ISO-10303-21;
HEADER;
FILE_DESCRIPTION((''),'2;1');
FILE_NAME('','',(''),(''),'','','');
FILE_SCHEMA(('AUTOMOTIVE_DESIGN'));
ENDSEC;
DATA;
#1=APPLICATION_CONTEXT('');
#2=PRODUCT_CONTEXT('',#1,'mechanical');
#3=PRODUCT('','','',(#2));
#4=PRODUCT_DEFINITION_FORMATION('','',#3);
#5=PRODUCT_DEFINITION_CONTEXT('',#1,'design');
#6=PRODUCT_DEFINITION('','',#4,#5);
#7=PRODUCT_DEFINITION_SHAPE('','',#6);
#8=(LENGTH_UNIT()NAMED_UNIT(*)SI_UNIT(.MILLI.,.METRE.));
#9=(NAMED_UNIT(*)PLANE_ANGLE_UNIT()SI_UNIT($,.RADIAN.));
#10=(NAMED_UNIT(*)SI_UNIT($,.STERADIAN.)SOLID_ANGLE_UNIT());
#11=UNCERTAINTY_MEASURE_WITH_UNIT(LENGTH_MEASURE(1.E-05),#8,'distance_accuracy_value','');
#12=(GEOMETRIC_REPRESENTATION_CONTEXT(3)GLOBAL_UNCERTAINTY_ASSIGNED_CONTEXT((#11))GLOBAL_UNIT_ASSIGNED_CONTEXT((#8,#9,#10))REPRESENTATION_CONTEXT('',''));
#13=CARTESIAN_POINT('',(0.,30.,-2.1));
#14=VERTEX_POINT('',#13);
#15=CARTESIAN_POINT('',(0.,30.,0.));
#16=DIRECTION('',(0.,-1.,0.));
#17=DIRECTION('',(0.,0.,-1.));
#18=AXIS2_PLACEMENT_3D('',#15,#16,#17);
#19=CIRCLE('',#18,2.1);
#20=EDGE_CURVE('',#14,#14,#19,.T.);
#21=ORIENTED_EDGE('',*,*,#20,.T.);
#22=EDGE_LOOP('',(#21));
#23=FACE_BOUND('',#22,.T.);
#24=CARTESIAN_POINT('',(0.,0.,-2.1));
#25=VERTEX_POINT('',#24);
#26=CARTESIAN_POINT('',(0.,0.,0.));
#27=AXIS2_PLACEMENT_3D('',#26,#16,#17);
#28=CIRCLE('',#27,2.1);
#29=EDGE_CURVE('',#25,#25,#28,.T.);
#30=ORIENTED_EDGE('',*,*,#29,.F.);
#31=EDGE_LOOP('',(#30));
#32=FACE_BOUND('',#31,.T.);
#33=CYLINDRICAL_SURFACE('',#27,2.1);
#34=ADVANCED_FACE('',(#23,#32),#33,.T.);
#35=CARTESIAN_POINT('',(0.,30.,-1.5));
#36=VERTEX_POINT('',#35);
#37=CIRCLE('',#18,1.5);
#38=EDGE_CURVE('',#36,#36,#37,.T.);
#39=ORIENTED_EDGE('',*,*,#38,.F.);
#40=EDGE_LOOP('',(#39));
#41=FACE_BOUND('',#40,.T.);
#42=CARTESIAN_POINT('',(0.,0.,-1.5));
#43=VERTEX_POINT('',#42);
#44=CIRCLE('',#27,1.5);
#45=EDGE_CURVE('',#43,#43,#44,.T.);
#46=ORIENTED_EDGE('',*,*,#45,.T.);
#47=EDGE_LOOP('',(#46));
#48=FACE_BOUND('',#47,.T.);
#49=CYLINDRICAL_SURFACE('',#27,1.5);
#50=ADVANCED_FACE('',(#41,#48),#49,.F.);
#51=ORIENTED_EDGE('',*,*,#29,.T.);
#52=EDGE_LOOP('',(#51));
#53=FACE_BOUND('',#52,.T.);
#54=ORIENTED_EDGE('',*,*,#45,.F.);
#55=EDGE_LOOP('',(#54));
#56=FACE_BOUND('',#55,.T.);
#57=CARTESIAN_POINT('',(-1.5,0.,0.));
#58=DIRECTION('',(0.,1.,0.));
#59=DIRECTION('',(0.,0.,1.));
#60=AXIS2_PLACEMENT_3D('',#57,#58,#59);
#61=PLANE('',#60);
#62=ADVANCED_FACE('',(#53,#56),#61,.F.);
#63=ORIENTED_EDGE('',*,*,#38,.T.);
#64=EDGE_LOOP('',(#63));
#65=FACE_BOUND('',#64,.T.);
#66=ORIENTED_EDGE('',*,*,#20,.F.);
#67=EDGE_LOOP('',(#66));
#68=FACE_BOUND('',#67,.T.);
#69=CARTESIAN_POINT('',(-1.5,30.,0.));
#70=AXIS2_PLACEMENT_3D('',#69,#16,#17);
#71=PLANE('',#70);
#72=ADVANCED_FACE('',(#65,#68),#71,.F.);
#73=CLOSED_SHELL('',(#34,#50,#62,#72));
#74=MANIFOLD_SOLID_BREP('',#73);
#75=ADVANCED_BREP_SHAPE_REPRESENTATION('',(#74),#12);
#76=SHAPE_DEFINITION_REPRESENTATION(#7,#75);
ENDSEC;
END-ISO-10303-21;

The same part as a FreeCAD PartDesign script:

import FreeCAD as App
import Part
import Sketcher
Q = App.Units.Quantity

doc = App.newDocument("Part")
body = doc.addObject("PartDesign::Body", "Body")

# Sketch on XY plane
sketch1 = body.newObject("Sketcher::SketchObject", "Sketch")
sketch1.AttachmentSupport = (doc.getObject("XY_Plane"), [""])
sketch1.MapMode = "FlatFace"
sketch1.addGeometry(Part.LineSegment(App.Vector(-2.1, 30, 0), App.Vector(-2.1, 0, 0)), False)
sketch1.addGeometry(Part.LineSegment(App.Vector(-2.1, 0, 0), App.Vector(-1.5, 0, 0)), False)
sketch1.addGeometry(Part.LineSegment(App.Vector(-1.5, 0, 0), App.Vector(-1.5, 30, 0)), False)
sketch1.addGeometry(Part.LineSegment(App.Vector(-1.5, 30, 0), App.Vector(-2.1, 30, 0)), False)
sketch1.addConstraint(Sketcher.Constraint("Coincident", 0, 2, 1, 1))
sketch1.addConstraint(Sketcher.Constraint("Coincident", 1, 2, 2, 1))
sketch1.addConstraint(Sketcher.Constraint("Coincident", 2, 2, 3, 1))
sketch1.addConstraint(Sketcher.Constraint("Coincident", 3, 2, 0, 1))
sketch1.addConstraint(Sketcher.Constraint("Vertical", 0))
sketch1.addConstraint(Sketcher.Constraint("Horizontal", 1))
sketch1.addConstraint(Sketcher.Constraint("Vertical", 2))
sketch1.addConstraint(Sketcher.Constraint("Horizontal", 3))
sketch1.addConstraint(Sketcher.Constraint("PointOnObject", 0, 2, -1))
sketch1.addConstraint(Sketcher.Constraint("DistanceY", 0, 2, 0, 1, Q("30 mm")))
sketch1.addConstraint(Sketcher.Constraint("DistanceX", 1, 1, 1, 2, Q("0.6 mm")))
sketch1.addConstraint(Sketcher.Constraint("DistanceX", 0, 2, -1, 1, Q("2.1 mm")))
revolution = body.newObject("PartDesign::Revolution", "Revolution")
revolution.Profile = sketch1
revolution.ReferenceAxis = (sketch1, ["V_Axis"])
revolution.Angle = 360

doc.recompute()
